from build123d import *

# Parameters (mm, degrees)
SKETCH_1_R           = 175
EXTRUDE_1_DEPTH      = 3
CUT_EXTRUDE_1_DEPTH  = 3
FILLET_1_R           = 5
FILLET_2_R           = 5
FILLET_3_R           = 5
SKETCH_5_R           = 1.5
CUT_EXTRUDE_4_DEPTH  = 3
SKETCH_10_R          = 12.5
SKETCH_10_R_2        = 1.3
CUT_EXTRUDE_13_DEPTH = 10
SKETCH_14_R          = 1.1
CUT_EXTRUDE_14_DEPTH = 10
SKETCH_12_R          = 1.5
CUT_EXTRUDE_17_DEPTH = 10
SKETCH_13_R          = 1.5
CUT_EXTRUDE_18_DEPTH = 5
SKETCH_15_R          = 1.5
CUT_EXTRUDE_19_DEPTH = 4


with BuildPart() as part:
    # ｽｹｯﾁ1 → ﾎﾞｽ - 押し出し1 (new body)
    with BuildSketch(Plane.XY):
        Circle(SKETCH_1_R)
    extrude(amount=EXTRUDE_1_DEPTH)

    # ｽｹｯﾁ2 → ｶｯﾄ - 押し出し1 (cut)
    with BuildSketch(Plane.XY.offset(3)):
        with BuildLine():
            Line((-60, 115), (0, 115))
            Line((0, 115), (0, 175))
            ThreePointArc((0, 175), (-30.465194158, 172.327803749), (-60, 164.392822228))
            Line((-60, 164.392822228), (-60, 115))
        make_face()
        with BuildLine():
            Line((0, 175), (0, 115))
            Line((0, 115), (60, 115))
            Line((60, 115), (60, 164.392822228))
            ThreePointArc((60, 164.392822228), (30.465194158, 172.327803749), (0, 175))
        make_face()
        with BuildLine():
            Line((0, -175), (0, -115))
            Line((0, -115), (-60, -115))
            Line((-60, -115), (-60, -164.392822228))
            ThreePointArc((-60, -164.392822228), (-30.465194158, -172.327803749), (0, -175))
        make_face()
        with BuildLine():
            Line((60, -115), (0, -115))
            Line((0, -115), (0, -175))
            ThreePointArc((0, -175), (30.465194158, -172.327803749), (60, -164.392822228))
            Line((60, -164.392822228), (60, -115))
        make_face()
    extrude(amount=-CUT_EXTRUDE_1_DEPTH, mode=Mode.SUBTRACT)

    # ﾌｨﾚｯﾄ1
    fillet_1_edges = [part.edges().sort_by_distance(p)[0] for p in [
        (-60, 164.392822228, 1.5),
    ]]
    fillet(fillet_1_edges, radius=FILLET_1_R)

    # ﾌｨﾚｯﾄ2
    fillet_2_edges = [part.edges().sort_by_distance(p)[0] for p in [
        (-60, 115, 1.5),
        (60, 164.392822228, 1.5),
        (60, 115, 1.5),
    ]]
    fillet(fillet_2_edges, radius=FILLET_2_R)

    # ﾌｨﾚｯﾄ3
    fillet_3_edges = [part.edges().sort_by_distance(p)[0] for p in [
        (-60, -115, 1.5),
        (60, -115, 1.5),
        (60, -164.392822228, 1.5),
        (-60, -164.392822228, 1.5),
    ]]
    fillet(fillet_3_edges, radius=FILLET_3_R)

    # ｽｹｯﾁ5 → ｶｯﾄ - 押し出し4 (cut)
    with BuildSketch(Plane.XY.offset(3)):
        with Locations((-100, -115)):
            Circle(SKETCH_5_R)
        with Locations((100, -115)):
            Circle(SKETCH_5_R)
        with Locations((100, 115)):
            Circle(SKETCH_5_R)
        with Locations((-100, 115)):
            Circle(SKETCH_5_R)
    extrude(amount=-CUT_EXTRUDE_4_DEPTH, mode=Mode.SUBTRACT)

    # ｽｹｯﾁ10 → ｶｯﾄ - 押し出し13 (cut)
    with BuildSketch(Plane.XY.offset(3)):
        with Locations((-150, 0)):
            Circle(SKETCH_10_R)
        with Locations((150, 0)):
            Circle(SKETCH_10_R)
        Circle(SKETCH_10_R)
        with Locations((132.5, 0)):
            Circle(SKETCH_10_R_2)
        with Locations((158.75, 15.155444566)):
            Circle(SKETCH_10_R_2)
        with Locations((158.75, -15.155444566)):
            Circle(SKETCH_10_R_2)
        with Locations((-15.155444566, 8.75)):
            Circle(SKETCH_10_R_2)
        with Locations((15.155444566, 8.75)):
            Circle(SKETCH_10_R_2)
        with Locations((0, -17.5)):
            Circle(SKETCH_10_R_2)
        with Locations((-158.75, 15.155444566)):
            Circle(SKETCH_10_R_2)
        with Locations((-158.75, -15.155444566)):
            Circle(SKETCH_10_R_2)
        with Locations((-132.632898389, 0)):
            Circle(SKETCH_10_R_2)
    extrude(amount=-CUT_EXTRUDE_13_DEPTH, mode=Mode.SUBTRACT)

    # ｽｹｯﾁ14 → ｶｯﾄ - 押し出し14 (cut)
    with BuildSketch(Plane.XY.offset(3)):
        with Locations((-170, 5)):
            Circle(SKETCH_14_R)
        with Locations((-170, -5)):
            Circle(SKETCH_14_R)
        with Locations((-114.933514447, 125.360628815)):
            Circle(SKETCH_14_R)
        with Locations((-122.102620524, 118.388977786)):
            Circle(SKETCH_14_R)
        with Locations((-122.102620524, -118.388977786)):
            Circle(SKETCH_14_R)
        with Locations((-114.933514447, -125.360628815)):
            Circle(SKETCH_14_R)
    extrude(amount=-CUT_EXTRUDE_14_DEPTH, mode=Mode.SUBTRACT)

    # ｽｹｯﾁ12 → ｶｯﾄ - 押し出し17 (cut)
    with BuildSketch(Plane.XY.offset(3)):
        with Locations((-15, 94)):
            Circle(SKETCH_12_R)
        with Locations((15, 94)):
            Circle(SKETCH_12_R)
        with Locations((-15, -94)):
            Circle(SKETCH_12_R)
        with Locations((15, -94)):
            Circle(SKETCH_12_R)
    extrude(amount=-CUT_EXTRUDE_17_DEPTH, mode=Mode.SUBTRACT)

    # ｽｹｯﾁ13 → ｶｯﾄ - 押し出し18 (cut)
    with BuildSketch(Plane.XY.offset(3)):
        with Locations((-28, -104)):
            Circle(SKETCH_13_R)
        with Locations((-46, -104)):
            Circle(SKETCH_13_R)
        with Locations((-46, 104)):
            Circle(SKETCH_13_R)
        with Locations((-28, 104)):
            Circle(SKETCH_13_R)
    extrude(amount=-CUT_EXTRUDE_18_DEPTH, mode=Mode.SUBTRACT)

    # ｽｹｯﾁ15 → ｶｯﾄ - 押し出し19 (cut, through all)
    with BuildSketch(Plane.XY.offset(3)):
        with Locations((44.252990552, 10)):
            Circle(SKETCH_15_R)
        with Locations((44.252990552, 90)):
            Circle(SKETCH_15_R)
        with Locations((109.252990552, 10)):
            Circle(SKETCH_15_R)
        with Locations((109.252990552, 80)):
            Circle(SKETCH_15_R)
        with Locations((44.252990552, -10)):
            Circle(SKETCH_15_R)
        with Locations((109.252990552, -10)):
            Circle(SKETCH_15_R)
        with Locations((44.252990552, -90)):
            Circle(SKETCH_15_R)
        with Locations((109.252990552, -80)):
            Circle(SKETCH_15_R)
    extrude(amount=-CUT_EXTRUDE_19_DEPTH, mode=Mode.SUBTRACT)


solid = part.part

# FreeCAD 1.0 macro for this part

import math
import FreeCAD as App
import Part
import Sketcher


def edges_at(feature, points):
    """Names of the edges that pass closest to the given points."""
    edges = feature.Shape.Edges
    near = lambda p: min(range(len(edges)), key=lambda i: edges[i].distToShape(Part.Vertex(*p))[0])
    return sorted({f"Edge{near(p) + 1}" for p in points})

doc = App.newDocument("Part")
body = doc.addObject("PartDesign::Body", "Body")

sketch1 = body.newObject("Sketcher::SketchObject", "Sketch")
sketch1.AttachmentSupport = (doc.getObject("XY_Plane"), [""])
sketch1.MapMode = "FlatFace"
sketch1.addGeometry(Part.Circle(App.Vector(0, 0, 0), App.Vector(0, 0, 1), 175), False)
sketch1.addConstraint(Sketcher.Constraint("Coincident", 0, 3, -1, 1))
sketch1.addConstraint(Sketcher.Constraint("Diameter", 0, 350.0))
pad1 = body.newObject("PartDesign::Pad", "Pad")
pad1.Profile = sketch1
pad1.Length = 3

sketch2 = body.newObject("Sketcher::SketchObject", "Sketch001")
sketch2.AttachmentSupport = (doc.getObject("XY_Plane"), [""])
sketch2.MapMode = "FlatFace"
sketch2.AttachmentOffset = App.Placement(App.Vector(0, 0, 3), App.Rotation())
sketch2.addGeometry(Part.LineSegment(App.Vector(-60, 115, 0), App.Vector(60, 115, 0)), False)
sketch2.addGeometry(Part.LineSegment(App.Vector(60, 115, 0), App.Vector(60, 164.392822, 0)), False)
sketch2.addGeometry(Part.ArcOfCircle(Part.Circle(App.Vector(0, 0, 0), App.Vector(0, 0, 1), 175), math.radians(69.948957), math.radians(90)), False)
sketch2.addGeometry(Part.ArcOfCircle(Part.Circle(App.Vector(0, 0, 0), App.Vector(0, 0, 1), 175), math.radians(90), math.radians(110.051043)), False)
sketch2.addGeometry(Part.LineSegment(App.Vector(-60, 164.392822, 0), App.Vector(-60, 115, 0)), False)
sketch2.addGeometry(Part.LineSegment(App.Vector(-60, -115, 0), App.Vector(-60, -164.392822, 0)), False)
sketch2.addGeometry(Part.ArcOfCircle(Part.Circle(App.Vector(0, 0, 0), App.Vector(0, 0, 1), 175), math.radians(-110.051043), math.radians(-90)), False)
sketch2.addGeometry(Part.ArcOfCircle(Part.Circle(App.Vector(0, 0, 0), App.Vector(0, 0, 1), 175), math.radians(-90), math.radians(-69.948957)), False)
sketch2.addGeometry(Part.LineSegment(App.Vector(60, -164.392822, 0), App.Vector(60, -115, 0)), False)
sketch2.addGeometry(Part.LineSegment(App.Vector(60, -115, 0), App.Vector(-60, -115, 0)), False)
sketch2.addConstraint(Sketcher.Constraint("Coincident", 0, 2, 1, 1))
sketch2.addConstraint(Sketcher.Constraint("Coincident", 1, 2, 2, 1))
sketch2.addConstraint(Sketcher.Constraint("Tangent", 2, 2, 3, 1))
sketch2.addConstraint(Sketcher.Constraint("Coincident", 3, 2, 4, 1))
sketch2.addConstraint(Sketcher.Constraint("Coincident", 4, 2, 0, 1))
sketch2.addConstraint(Sketcher.Constraint("Coincident", 5, 2, 6, 1))
sketch2.addConstraint(Sketcher.Constraint("Tangent", 6, 2, 7, 1))
sketch2.addConstraint(Sketcher.Constraint("Coincident", 7, 2, 8, 1))
sketch2.addConstraint(Sketcher.Constraint("Coincident", 8, 2, 9, 1))
sketch2.addConstraint(Sketcher.Constraint("Coincident", 9, 2, 5, 1))
sketch2.addConstraint(Sketcher.Constraint("Horizontal", 0))
sketch2.addConstraint(Sketcher.Constraint("Vertical", 1))
sketch2.addConstraint(Sketcher.Constraint("Vertical", 4))
sketch2.addConstraint(Sketcher.Constraint("Vertical", 5))
sketch2.addConstraint(Sketcher.Constraint("Vertical", 8))
sketch2.addConstraint(Sketcher.Constraint("Horizontal", 9))
sketch2.addConstraint(Sketcher.Constraint("Coincident", 2, 3, -1, 1))
sketch2.addConstraint(Sketcher.Constraint("Coincident", 6, 3, -1, 1))
sketch2.addConstraint(Sketcher.Constraint("Equal", 2, 3))
sketch2.addConstraint(Sketcher.Constraint("Equal", 3, 6))
sketch2.addConstraint(Sketcher.Constraint("Equal", 6, 7))
sketch2.addConstraint(Sketcher.Constraint("Symmetric", 4, 2, 8, 2, -1, 1))
sketch2.addConstraint(Sketcher.Constraint("PointOnObject", 2, 2, -2))
sketch2.addConstraint(Sketcher.Constraint("PointOnObject", 6, 2, -2))
sketch2.addConstraint(Sketcher.Constraint("Horizontal", 1, 2, 3, 2))
sketch2.addConstraint(Sketcher.Constraint("Horizontal", 5, 2, 7, 2))
sketch2.addConstraint(Sketcher.Constraint("Radius", 2, 175.0))
sketch2.addConstraint(Sketcher.Constraint("DistanceX", 0, 1, 0, 2, 120.0))
sketch2.addConstraint(Sketcher.Constraint("DistanceY", -1, 1, 0, 2, 115.0))
pocket1 = body.newObject("PartDesign::Pocket", "Pocket")
pocket1.Profile = sketch2
pocket1.Length = 3
doc.recompute()

fillet = body.newObject("PartDesign::Fillet", "Fillet")
fillet.Base = (pocket1, edges_at(pocket1, [(-60, 164.393, 1.5)]))
fillet.Radius = 5
doc.recompute()

fillet2 = body.newObject("PartDesign::Fillet", "Fillet001")
fillet2.Base = (fillet, edges_at(fillet, [(-60, 115, 1.5), (60, 164.393, 1.5), (60, 115, 1.5)]))
fillet2.Radius = 5
doc.recompute()

fillet3 = body.newObject("PartDesign::Fillet", "Fillet002")
fillet3.Base = (fillet2, edges_at(fillet2, [
    (-60, -115, 1.5),
    (60, -115, 1.5),
    (60, -164.393, 1.5),
    (-60, -164.393, 1.5),
]))
fillet3.Radius = 5

sketch3 = body.newObject("Sketcher::SketchObject", "Sketch002")
sketch3.AttachmentSupport = (doc.getObject("XY_Plane"), [""])
sketch3.MapMode = "FlatFace"
sketch3.AttachmentOffset = App.Placement(App.Vector(0, 0, 3), App.Rotation())
sketch3.addGeometry(Part.Circle(App.Vector(-100, -115, 0), App.Vector(0, 0, 1), 1.5), False)
sketch3.addGeometry(Part.Circle(App.Vector(100, -115, 0), App.Vector(0, 0, 1), 1.5), False)
sketch3.addGeometry(Part.Circle(App.Vector(100, 115, 0), App.Vector(0, 0, 1), 1.5), False)
sketch3.addGeometry(Part.Circle(App.Vector(-100, 115, 0), App.Vector(0, 0, 1), 1.5), False)
sketch3.addConstraint(Sketcher.Constraint("Equal", 0, 1))
sketch3.addConstraint(Sketcher.Constraint("Equal", 1, 2))
sketch3.addConstraint(Sketcher.Constraint("Equal", 2, 3))
sketch3.addConstraint(Sketcher.Constraint("Symmetric", 0, 3, 2, 3, -1, 1))
sketch3.addConstraint(Sketcher.Constraint("Symmetric", 1, 3, 3, 3, -1, 1))
sketch3.addConstraint(Sketcher.Constraint("Symmetric", 0, 3, 1, 3, -2))
sketch3.addConstraint(Sketcher.Constraint("Diameter", 0, 3.0))
sketch3.addConstraint(Sketcher.Constraint("DistanceX", 0, 3, -1, 1, 100.0))
sketch3.addConstraint(Sketcher.Constraint("DistanceY", 0, 3, -1, 1, 115.0))
pocket2 = body.newObject("PartDesign::Pocket", "Pocket001")
pocket2.Profile = sketch3
pocket2.Length = 3

sketch4 = body.newObject("Sketcher::SketchObject", "Sketch003")
sketch4.AttachmentSupport = (doc.getObject("XY_Plane"), [""])
sketch4.MapMode = "FlatFace"
sketch4.AttachmentOffset = App.Placement(App.Vector(0, 0, 3), App.Rotation())
sketch4.addGeometry(Part.Circle(App.Vector(-150, 0, 0), App.Vector(0, 0, 1), 12.5), False)
sketch4.addGeometry(Part.Circle(App.Vector(150, 0, 0), App.Vector(0, 0, 1), 12.5), False)
sketch4.addGeometry(Part.Circle(App.Vector(0, 0, 0), App.Vector(0, 0, 1), 12.5), False)
sketch4.addGeometry(Part.Circle(App.Vector(132.5, 0, 0), App.Vector(0, 0, 1), 1.3), False)
sketch4.addGeometry(Part.Circle(App.Vector(158.75, 15.155445, 0), App.Vector(0, 0, 1), 1.3), False)
sketch4.addGeometry(Part.Circle(App.Vector(158.75, -15.155445, 0), App.Vector(0, 0, 1), 1.3), False)
sketch4.addGeometry(Part.Circle(App.Vector(-15.155445, 8.75, 0), App.Vector(0, 0, 1), 1.3), False)
sketch4.addGeometry(Part.Circle(App.Vector(15.155445, 8.75, 0), App.Vector(0, 0, 1), 1.3), False)
sketch4.addGeometry(Part.Circle(App.Vector(0, -17.5, 0), App.Vector(0, 0, 1), 1.3), False)
sketch4.addGeometry(Part.Circle(App.Vector(-158.75, 15.155445, 0), App.Vector(0, 0, 1), 1.3), False)
sketch4.addGeometry(Part.Circle(App.Vector(-158.75, -15.155445, 0), App.Vector(0, 0, 1), 1.3), False)
sketch4.addGeometry(Part.Circle(App.Vector(-132.632898, 0, 0), App.Vector(0, 0, 1), 1.3), False)
sketch4.addConstraint(Sketcher.Constraint("Coincident", 2, 3, -1, 1))
sketch4.addConstraint(Sketcher.Constraint("Equal", 0, 1))
sketch4.addConstraint(Sketcher.Constraint("Equal", 1, 2))
sketch4.addConstraint(Sketcher.Constraint("Equal", 3, 4))
sketch4.addConstraint(Sketcher.Constraint("Equal", 4, 5))
sketch4.addConstraint(Sketcher.Constraint("Equal", 5, 6))
sketch4.addConstraint(Sketcher.Constraint("Equal", 6, 7))
sketch4.addConstraint(Sketcher.Constraint("Equal", 7, 8))
sketch4.addConstraint(Sketcher.Constraint("Equal", 8, 9))
sketch4.addConstraint(Sketcher.Constraint("Equal", 9, 10))
sketch4.addConstraint(Sketcher.Constraint("Equal", 10, 11))
sketch4.addConstraint(Sketcher.Constraint("Symmetric", 0, 3, 1, 3, -1, 1))
sketch4.addConstraint(Sketcher.Constraint("Symmetric", 5, 3, 9, 3, -1, 1))
sketch4.addConstraint(Sketcher.Constraint("Symmetric", 4, 3, 10, 3, -1, 1))
sketch4.addConstraint(Sketcher.Constraint("Symmetric", 6, 3, 7, 3, -2))
sketch4.addConstraint(Sketcher.Constraint("Symmetric", 4, 3, 9, 3, -2))
sketch4.addConstraint(Sketcher.Constraint("PointOnObject", 0, 3, -1))
sketch4.addConstraint(Sketcher.Constraint("PointOnObject", 3, 3, -1))
sketch4.addConstraint(Sketcher.Constraint("PointOnObject", 8, 3, -2))
sketch4.addConstraint(Sketcher.Constraint("PointOnObject", 11, 3, -1))
sketch4.addConstraint(Sketcher.Constraint("Diameter", 0, 25.0))
sketch4.addConstraint(Sketcher.Constraint("Diameter", 3, 2.6))
sketch4.addConstraint(Sketcher.Constraint("DistanceX", 0, 3, -1, 1, 150.0))
sketch4.addConstraint(Sketcher.Constraint("DistanceX", -1, 1, 3, 3, 132.5))
sketch4.addConstraint(Sketcher.Constraint("DistanceY", 8, 3, -1, 1, 17.5))
sketch4.addConstraint(Sketcher.Constraint("DistanceX", -1, 1, 4, 3, 158.75))
sketch4.addConstraint(Sketcher.Constraint("DistanceY", -1, 1, 6, 3, 8.75))
sketch4.addConstraint(Sketcher.Constraint("DistanceX", 11, 3, -1, 1, 132.632898))
sketch4.addConstraint(Sketcher.Constraint("DistanceY", 5, 3, 4, 3, 30.310889))
sketch4.addConstraint(Sketcher.Constraint("DistanceX", 6, 3, 7, 3, 30.310889))
pocket3 = body.newObject("PartDesign::Pocket", "Pocket002")
pocket3.Profile = sketch4
pocket3.Length = 10

sketch5 = body.newObject("Sketcher::SketchObject", "Sketch004")
sketch5.AttachmentSupport = (doc.getObject("XY_Plane"), [""])
sketch5.MapMode = "FlatFace"
sketch5.AttachmentOffset = App.Placement(App.Vector(0, 0, 3), App.Rotation())
sketch5.addGeometry(Part.Circle(App.Vector(-170, 5, 0), App.Vector(0, 0, 1), 1.1), False)
sketch5.addGeometry(Part.Circle(App.Vector(-170, -5, 0), App.Vector(0, 0, 1), 1.1), False)
sketch5.addGeometry(Part.Circle(App.Vector(-114.933514, 125.360629, 0), App.Vector(0, 0, 1), 1.1), False)
sketch5.addGeometry(Part.Circle(App.Vector(-122.102621, 118.388978, 0), App.Vector(0, 0, 1), 1.1), False)
sketch5.addGeometry(Part.Circle(App.Vector(-122.102621, -118.388978, 0), App.Vector(0, 0, 1), 1.1), False)
sketch5.addGeometry(Part.Circle(App.Vector(-114.933514, -125.360629, 0), App.Vector(0, 0, 1), 1.1), False)
sketch5.addConstraint(Sketcher.Constraint("Equal", 0, 1))
sketch5.addConstraint(Sketcher.Constraint("Equal", 1, 2))
sketch5.addConstraint(Sketcher.Constraint("Equal", 2, 3))
sketch5.addConstraint(Sketcher.Constraint("Equal", 3, 4))
sketch5.addConstraint(Sketcher.Constraint("Equal", 4, 5))
sketch5.addConstraint(Sketcher.Constraint("Symmetric", 0, 3, 1, 3, -1))
sketch5.addConstraint(Sketcher.Constraint("Symmetric", 3, 3, 4, 3, -1))
sketch5.addConstraint(Sketcher.Constraint("Symmetric", 2, 3, 5, 3, -1))
sketch5.addConstraint(Sketcher.Constraint("Diameter", 0, 2.2))
sketch5.addConstraint(Sketcher.Constraint("DistanceX", 0, 3, -1, 1, 170.0))
sketch5.addConstraint(Sketcher.Constraint("DistanceY", -1, 1, 0, 3, 5.0))
sketch5.addConstraint(Sketcher.Constraint("DistanceY", -1, 1, 2, 3, 125.360629))
sketch5.addConstraint(Sketcher.Constraint("DistanceX", 3, 3, -1, 1, 122.102621))
sketch5.addConstraint(Sketcher.Constraint("DistanceY", 3, 3, 2, 3, 6.971651))
sketch5.addConstraint(Sketcher.Constraint("DistanceX", 2, 3, -1, 1, 114.933514))
pocket4 = body.newObject("PartDesign::Pocket", "Pocket003")
pocket4.Profile = sketch5
pocket4.Length = 10

sketch6 = body.newObject("Sketcher::SketchObject", "Sketch005")
sketch6.AttachmentSupport = (doc.getObject("XY_Plane"), [""])
sketch6.MapMode = "FlatFace"
sketch6.AttachmentOffset = App.Placement(App.Vector(0, 0, 3), App.Rotation())
sketch6.addGeometry(Part.Circle(App.Vector(-15, 94, 0), App.Vector(0, 0, 1), 1.5), False)
sketch6.addGeometry(Part.Circle(App.Vector(15, 94, 0), App.Vector(0, 0, 1), 1.5), False)
sketch6.addGeometry(Part.Circle(App.Vector(-15, -94, 0), App.Vector(0, 0, 1), 1.5), False)
sketch6.addGeometry(Part.Circle(App.Vector(15, -94, 0), App.Vector(0, 0, 1), 1.5), False)
sketch6.addConstraint(Sketcher.Constraint("Equal", 0, 1))
sketch6.addConstraint(Sketcher.Constraint("Equal", 1, 2))
sketch6.addConstraint(Sketcher.Constraint("Equal", 2, 3))
sketch6.addConstraint(Sketcher.Constraint("Symmetric", 1, 3, 2, 3, -1, 1))
sketch6.addConstraint(Sketcher.Constraint("Symmetric", 0, 3, 3, 3, -1, 1))
sketch6.addConstraint(Sketcher.Constraint("Symmetric", 0, 3, 1, 3, -2))
sketch6.addConstraint(Sketcher.Constraint("Diameter", 0, 3.0))
sketch6.addConstraint(Sketcher.Constraint("DistanceX", 0, 3, -1, 1, 15.0))
sketch6.addConstraint(Sketcher.Constraint("DistanceY", -1, 1, 0, 3, 94.0))
pocket5 = body.newObject("PartDesign::Pocket", "Pocket004")
pocket5.Profile = sketch6
pocket5.Length = 10

sketch7 = body.newObject("Sketcher::SketchObject", "Sketch006")
sketch7.AttachmentSupport = (doc.getObject("XY_Plane"), [""])
sketch7.MapMode = "FlatFace"
sketch7.AttachmentOffset = App.Placement(App.Vector(0, 0, 3), App.Rotation())
sketch7.addGeometry(Part.Circle(App.Vector(-28, -104, 0), App.Vector(0, 0, 1), 1.5), False)
sketch7.addGeometry(Part.Circle(App.Vector(-46, -104, 0), App.Vector(0, 0, 1), 1.5), False)
sketch7.addGeometry(Part.Circle(App.Vector(-46, 104, 0), App.Vector(0, 0, 1), 1.5), False)
sketch7.addGeometry(Part.Circle(App.Vector(-28, 104, 0), App.Vector(0, 0, 1), 1.5), False)
sketch7.addConstraint(Sketcher.Constraint("Equal", 0, 1))
sketch7.addConstraint(Sketcher.Constraint("Equal", 1, 2))
sketch7.addConstraint(Sketcher.Constraint("Equal", 2, 3))
sketch7.addConstraint(Sketcher.Constraint("Symmetric", 1, 3, 2, 3, -1))
sketch7.addConstraint(Sketcher.Constraint("Symmetric", 0, 3, 3, 3, -1))
sketch7.addConstraint(Sketcher.Constraint("Horizontal", 0, 3, 1, 3))
sketch7.addConstraint(Sketcher.Constraint("Diameter", 0, 3.0))
sketch7.addConstraint(Sketcher.Constraint("DistanceX", 0, 3, -1, 1, 28.0))
sketch7.addConstraint(Sketcher.Constraint("DistanceY", 0, 3, -1, 1, 104.0))
sketch7.addConstraint(Sketcher.Constraint("DistanceX", 1, 3, -1, 1, 46.0))
pocket6 = body.newObject("PartDesign::Pocket", "Pocket005")
pocket6.Profile = sketch7
pocket6.Length = 5

sketch8 = body.newObject("Sketcher::SketchObject", "Sketch007")
sketch8.AttachmentSupport = (doc.getObject("XY_Plane"), [""])
sketch8.MapMode = "FlatFace"
sketch8.AttachmentOffset = App.Placement(App.Vector(0, 0, 3), App.Rotation())
sketch8.addGeometry(Part.Circle(App.Vector(44.252991, 10, 0), App.Vector(0, 0, 1), 1.5), False)
sketch8.addGeometry(Part.Circle(App.Vector(44.252991, 90, 0), App.Vector(0, 0, 1), 1.5), False)
sketch8.addGeometry(Part.Circle(App.Vector(109.252991, 10, 0), App.Vector(0, 0, 1), 1.5), False)
sketch8.addGeometry(Part.Circle(App.Vector(109.252991, 80, 0), App.Vector(0, 0, 1), 1.5), False)
sketch8.addGeometry(Part.Circle(App.Vector(44.252991, -10, 0), App.Vector(0, 0, 1), 1.5), False)
sketch8.addGeometry(Part.Circle(App.Vector(109.252991, -10, 0), App.Vector(0, 0, 1), 1.5), False)
sketch8.addGeometry(Part.Circle(App.Vector(44.252991, -90, 0), App.Vector(0, 0, 1), 1.5), False)
sketch8.addGeometry(Part.Circle(App.Vector(109.252991, -80, 0), App.Vector(0, 0, 1), 1.5), False)
sketch8.addConstraint(Sketcher.Constraint("Equal", 0, 1))
sketch8.addConstraint(Sketcher.Constraint("Equal", 1, 2))
sketch8.addConstraint(Sketcher.Constraint("Equal", 2, 3))
sketch8.addConstraint(Sketcher.Constraint("Equal", 3, 4))
sketch8.addConstraint(Sketcher.Constraint("Equal", 4, 5))
sketch8.addConstraint(Sketcher.Constraint("Equal", 5, 6))
sketch8.addConstraint(Sketcher.Constraint("Equal", 6, 7))
sketch8.addConstraint(Sketcher.Constraint("Symmetric", 0, 3, 4, 3, -1))
sketch8.addConstraint(Sketcher.Constraint("Symmetric", 2, 3, 5, 3, -1))
sketch8.addConstraint(Sketcher.Constraint("Symmetric", 1, 3, 6, 3, -1))
sketch8.addConstraint(Sketcher.Constraint("Symmetric", 3, 3, 7, 3, -1))
sketch8.addConstraint(Sketcher.Constraint("Horizontal", 0, 3, 2, 3))
sketch8.addConstraint(Sketcher.Constraint("Vertical", 0, 3, 1, 3))
sketch8.addConstraint(Sketcher.Constraint("Vertical", 2, 3, 3, 3))
sketch8.addConstraint(Sketcher.Constraint("Diameter", 0, 3.0))
sketch8.addConstraint(Sketcher.Constraint("DistanceY", -1, 1, 0, 3, 10.0))
sketch8.addConstraint(Sketcher.Constraint("DistanceY", -1, 1, 1, 3, 90.0))
sketch8.addConstraint(Sketcher.Constraint("DistanceY", -1, 1, 3, 3, 80.0))
sketch8.addConstraint(Sketcher.Constraint("DistanceX", 0, 3, 2, 3, 65.0))
sketch8.addConstraint(Sketcher.Constraint("DistanceX", -1, 1, 0, 3, 44.252991))
pocket7 = body.newObject("PartDesign::Pocket", "Pocket006")
pocket7.Profile = sketch8
pocket7.Type = "ThroughAll"

doc.recompute()
